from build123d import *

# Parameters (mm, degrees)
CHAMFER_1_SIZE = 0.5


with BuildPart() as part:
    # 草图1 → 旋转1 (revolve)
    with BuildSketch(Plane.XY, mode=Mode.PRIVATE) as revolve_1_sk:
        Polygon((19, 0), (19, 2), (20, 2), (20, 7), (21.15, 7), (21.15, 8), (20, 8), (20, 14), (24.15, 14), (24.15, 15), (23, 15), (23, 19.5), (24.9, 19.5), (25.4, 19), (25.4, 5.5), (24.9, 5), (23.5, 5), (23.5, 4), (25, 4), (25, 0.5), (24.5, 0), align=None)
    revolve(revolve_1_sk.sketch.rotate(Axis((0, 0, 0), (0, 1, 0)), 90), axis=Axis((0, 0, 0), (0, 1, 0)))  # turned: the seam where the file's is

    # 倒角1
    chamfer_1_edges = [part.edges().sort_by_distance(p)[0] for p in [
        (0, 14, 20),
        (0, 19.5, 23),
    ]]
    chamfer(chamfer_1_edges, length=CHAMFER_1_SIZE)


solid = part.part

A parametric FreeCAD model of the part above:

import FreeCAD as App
import Part
import Sketcher

V = App.Vector
Q = App.Units.Quantity


def edges_at(feature, points):
    """Names of the edges that pass closest to the given points."""
    edges = feature.Shape.Edges
    near = lambda p: min(range(len(edges)), key=lambda i: edges[i].distToShape(Part.Vertex(*p))[0])
    return sorted({f"Edge{near(p) + 1}" for p in points})


def add_polygon(sketch, points):
    """Adds a closed chain of lines whose ends are joined by coincident constraints."""
    first, n = sketch.GeometryCount, len(points)
    for a, b in zip(points, points[1:] + points[:1]):
        sketch.addGeometry(Part.LineSegment(App.Vector(*a, 0), App.Vector(*b, 0)), False)
    for i in range(n):
        sketch.addConstraint(Sketcher.Constraint("Coincident", first + i, 2, first + (i + 1) % n, 1))

doc = App.newDocument("Part")
body = doc.addObject("PartDesign::Body", "Body")

# Sketch on XY plane
sketch1 = body.newObject("Sketcher::SketchObject", "Sketch")
sketch1.AttachmentSupport = (doc.getObject("XY_Plane"), [""])
sketch1.MapMode = "FlatFace"
add_polygon(sketch1, [(19, 2), (19, 0), (24.5, 0), (25, 0.5), (25, 4), (23.5, 4), (23.5, 5), (24.9, 5), (25.4, 5.5), (25.4, 19), (24.9, 19.5), (23, 19.5), (23, 15), (24.1, 15), (24.1, 14), (20, 14), (20, 8), (21.1, 8), (21.1, 7), (20, 7), (20, 2)])  # lines 0-20
sketch1.addConstraint([
    Sketcher.Constraint("Vertical", 0),
    Sketcher.Constraint("Horizontal", 1),
    Sketcher.Constraint("Vertical", 3),
    Sketcher.Constraint("Horizontal", 4),
    Sketcher.Constraint("Vertical", 5),
    Sketcher.Constraint("Horizontal", 6),
    Sketcher.Constraint("Vertical", 8),
    Sketcher.Constraint("Horizontal", 10),
    Sketcher.Constraint("Vertical", 11),
    Sketcher.Constraint("Horizontal", 12),
    Sketcher.Constraint("Vertical", 13),
    Sketcher.Constraint("Horizontal", 14),
    Sketcher.Constraint("Vertical", 15),
    Sketcher.Constraint("Horizontal", 16),
    Sketcher.Constraint("Vertical", 17),
    Sketcher.Constraint("Horizontal", 18),
    Sketcher.Constraint("Vertical", 19),
    Sketcher.Constraint("Horizontal", 20),
    Sketcher.Constraint("PointOnObject", 0, 2, -1),
    Sketcher.Constraint("Parallel", 2, 7),
    Sketcher.Constraint("Perpendicular", 7, 9),
    Sketcher.Constraint("Vertical", 6, 2, 9, 2),
    Sketcher.Constraint("Vertical", 15, 2, 18, 2),
    Sketcher.Constraint("Equal", 12, 16),
    Sketcher.Constraint("Equal", 20, 5),
    Sketcher.Constraint("Equal", 5, 13),
    Sketcher.Constraint("Equal", 13, 17),
    Sketcher.Constraint("Equal", 2, 7),
    Sketcher.Constraint("Equal", 7, 9),
    Sketcher.Constraint("DistanceX", 20, 2, 20, 1, Q("1 mm")),
    Sketcher.Constraint("DistanceY", 0, 2, 0, 1, Q("2 mm")),
    Sketcher.Constraint("DistanceY", 15, 2, 15, 1, Q("6 mm")),
    Sketcher.Constraint("DistanceY", 19, 2, 19, 1, Q("5 mm")),
    Sketcher.Constraint("DistanceX", 1, 1, 1, 2, Q("5.5 mm")),
    Sketcher.Constraint("DistanceX", 4, 2, 4, 1, Q("1.5 mm")),
    Sketcher.Constraint("DistanceX", 6, 1, 6, 2, Q("1.4 mm")),
    Sketcher.Constraint("DistanceX", 10, 2, 10, 1, Q("1.9 mm")),
    Sketcher.Constraint("DistanceY", 3, 1, 3, 2, Q("3.5 mm")),
    Sketcher.Constraint("DistanceY", 8, 1, 8, 2, Q("13.5 mm")),
    Sketcher.Constraint("DistanceY", 11, 2, 11, 1, Q("4.5 mm")),
    Sketcher.Constraint("DistanceX", -1, 1, 0, 2, Q("19 mm")),
    Sketcher.Constraint("DistanceX", 12, 1, 12, 2, Q("1.15 mm")),
])
revolution = body.newObject("PartDesign::Revolution", "Revolution")
revolution.Profile = sketch1
revolution.ReferenceAxis = (sketch1, ["V_Axis"])
revolution.Angle = 360
doc.recompute()

chamfer = body.newObject("PartDesign::Chamfer", "Chamfer")
chamfer.Base = (revolution, edges_at(revolution, [(0, 14, 20), (0, 19.5, 23)]))
chamfer.Size = 0.5

doc.recompute()
